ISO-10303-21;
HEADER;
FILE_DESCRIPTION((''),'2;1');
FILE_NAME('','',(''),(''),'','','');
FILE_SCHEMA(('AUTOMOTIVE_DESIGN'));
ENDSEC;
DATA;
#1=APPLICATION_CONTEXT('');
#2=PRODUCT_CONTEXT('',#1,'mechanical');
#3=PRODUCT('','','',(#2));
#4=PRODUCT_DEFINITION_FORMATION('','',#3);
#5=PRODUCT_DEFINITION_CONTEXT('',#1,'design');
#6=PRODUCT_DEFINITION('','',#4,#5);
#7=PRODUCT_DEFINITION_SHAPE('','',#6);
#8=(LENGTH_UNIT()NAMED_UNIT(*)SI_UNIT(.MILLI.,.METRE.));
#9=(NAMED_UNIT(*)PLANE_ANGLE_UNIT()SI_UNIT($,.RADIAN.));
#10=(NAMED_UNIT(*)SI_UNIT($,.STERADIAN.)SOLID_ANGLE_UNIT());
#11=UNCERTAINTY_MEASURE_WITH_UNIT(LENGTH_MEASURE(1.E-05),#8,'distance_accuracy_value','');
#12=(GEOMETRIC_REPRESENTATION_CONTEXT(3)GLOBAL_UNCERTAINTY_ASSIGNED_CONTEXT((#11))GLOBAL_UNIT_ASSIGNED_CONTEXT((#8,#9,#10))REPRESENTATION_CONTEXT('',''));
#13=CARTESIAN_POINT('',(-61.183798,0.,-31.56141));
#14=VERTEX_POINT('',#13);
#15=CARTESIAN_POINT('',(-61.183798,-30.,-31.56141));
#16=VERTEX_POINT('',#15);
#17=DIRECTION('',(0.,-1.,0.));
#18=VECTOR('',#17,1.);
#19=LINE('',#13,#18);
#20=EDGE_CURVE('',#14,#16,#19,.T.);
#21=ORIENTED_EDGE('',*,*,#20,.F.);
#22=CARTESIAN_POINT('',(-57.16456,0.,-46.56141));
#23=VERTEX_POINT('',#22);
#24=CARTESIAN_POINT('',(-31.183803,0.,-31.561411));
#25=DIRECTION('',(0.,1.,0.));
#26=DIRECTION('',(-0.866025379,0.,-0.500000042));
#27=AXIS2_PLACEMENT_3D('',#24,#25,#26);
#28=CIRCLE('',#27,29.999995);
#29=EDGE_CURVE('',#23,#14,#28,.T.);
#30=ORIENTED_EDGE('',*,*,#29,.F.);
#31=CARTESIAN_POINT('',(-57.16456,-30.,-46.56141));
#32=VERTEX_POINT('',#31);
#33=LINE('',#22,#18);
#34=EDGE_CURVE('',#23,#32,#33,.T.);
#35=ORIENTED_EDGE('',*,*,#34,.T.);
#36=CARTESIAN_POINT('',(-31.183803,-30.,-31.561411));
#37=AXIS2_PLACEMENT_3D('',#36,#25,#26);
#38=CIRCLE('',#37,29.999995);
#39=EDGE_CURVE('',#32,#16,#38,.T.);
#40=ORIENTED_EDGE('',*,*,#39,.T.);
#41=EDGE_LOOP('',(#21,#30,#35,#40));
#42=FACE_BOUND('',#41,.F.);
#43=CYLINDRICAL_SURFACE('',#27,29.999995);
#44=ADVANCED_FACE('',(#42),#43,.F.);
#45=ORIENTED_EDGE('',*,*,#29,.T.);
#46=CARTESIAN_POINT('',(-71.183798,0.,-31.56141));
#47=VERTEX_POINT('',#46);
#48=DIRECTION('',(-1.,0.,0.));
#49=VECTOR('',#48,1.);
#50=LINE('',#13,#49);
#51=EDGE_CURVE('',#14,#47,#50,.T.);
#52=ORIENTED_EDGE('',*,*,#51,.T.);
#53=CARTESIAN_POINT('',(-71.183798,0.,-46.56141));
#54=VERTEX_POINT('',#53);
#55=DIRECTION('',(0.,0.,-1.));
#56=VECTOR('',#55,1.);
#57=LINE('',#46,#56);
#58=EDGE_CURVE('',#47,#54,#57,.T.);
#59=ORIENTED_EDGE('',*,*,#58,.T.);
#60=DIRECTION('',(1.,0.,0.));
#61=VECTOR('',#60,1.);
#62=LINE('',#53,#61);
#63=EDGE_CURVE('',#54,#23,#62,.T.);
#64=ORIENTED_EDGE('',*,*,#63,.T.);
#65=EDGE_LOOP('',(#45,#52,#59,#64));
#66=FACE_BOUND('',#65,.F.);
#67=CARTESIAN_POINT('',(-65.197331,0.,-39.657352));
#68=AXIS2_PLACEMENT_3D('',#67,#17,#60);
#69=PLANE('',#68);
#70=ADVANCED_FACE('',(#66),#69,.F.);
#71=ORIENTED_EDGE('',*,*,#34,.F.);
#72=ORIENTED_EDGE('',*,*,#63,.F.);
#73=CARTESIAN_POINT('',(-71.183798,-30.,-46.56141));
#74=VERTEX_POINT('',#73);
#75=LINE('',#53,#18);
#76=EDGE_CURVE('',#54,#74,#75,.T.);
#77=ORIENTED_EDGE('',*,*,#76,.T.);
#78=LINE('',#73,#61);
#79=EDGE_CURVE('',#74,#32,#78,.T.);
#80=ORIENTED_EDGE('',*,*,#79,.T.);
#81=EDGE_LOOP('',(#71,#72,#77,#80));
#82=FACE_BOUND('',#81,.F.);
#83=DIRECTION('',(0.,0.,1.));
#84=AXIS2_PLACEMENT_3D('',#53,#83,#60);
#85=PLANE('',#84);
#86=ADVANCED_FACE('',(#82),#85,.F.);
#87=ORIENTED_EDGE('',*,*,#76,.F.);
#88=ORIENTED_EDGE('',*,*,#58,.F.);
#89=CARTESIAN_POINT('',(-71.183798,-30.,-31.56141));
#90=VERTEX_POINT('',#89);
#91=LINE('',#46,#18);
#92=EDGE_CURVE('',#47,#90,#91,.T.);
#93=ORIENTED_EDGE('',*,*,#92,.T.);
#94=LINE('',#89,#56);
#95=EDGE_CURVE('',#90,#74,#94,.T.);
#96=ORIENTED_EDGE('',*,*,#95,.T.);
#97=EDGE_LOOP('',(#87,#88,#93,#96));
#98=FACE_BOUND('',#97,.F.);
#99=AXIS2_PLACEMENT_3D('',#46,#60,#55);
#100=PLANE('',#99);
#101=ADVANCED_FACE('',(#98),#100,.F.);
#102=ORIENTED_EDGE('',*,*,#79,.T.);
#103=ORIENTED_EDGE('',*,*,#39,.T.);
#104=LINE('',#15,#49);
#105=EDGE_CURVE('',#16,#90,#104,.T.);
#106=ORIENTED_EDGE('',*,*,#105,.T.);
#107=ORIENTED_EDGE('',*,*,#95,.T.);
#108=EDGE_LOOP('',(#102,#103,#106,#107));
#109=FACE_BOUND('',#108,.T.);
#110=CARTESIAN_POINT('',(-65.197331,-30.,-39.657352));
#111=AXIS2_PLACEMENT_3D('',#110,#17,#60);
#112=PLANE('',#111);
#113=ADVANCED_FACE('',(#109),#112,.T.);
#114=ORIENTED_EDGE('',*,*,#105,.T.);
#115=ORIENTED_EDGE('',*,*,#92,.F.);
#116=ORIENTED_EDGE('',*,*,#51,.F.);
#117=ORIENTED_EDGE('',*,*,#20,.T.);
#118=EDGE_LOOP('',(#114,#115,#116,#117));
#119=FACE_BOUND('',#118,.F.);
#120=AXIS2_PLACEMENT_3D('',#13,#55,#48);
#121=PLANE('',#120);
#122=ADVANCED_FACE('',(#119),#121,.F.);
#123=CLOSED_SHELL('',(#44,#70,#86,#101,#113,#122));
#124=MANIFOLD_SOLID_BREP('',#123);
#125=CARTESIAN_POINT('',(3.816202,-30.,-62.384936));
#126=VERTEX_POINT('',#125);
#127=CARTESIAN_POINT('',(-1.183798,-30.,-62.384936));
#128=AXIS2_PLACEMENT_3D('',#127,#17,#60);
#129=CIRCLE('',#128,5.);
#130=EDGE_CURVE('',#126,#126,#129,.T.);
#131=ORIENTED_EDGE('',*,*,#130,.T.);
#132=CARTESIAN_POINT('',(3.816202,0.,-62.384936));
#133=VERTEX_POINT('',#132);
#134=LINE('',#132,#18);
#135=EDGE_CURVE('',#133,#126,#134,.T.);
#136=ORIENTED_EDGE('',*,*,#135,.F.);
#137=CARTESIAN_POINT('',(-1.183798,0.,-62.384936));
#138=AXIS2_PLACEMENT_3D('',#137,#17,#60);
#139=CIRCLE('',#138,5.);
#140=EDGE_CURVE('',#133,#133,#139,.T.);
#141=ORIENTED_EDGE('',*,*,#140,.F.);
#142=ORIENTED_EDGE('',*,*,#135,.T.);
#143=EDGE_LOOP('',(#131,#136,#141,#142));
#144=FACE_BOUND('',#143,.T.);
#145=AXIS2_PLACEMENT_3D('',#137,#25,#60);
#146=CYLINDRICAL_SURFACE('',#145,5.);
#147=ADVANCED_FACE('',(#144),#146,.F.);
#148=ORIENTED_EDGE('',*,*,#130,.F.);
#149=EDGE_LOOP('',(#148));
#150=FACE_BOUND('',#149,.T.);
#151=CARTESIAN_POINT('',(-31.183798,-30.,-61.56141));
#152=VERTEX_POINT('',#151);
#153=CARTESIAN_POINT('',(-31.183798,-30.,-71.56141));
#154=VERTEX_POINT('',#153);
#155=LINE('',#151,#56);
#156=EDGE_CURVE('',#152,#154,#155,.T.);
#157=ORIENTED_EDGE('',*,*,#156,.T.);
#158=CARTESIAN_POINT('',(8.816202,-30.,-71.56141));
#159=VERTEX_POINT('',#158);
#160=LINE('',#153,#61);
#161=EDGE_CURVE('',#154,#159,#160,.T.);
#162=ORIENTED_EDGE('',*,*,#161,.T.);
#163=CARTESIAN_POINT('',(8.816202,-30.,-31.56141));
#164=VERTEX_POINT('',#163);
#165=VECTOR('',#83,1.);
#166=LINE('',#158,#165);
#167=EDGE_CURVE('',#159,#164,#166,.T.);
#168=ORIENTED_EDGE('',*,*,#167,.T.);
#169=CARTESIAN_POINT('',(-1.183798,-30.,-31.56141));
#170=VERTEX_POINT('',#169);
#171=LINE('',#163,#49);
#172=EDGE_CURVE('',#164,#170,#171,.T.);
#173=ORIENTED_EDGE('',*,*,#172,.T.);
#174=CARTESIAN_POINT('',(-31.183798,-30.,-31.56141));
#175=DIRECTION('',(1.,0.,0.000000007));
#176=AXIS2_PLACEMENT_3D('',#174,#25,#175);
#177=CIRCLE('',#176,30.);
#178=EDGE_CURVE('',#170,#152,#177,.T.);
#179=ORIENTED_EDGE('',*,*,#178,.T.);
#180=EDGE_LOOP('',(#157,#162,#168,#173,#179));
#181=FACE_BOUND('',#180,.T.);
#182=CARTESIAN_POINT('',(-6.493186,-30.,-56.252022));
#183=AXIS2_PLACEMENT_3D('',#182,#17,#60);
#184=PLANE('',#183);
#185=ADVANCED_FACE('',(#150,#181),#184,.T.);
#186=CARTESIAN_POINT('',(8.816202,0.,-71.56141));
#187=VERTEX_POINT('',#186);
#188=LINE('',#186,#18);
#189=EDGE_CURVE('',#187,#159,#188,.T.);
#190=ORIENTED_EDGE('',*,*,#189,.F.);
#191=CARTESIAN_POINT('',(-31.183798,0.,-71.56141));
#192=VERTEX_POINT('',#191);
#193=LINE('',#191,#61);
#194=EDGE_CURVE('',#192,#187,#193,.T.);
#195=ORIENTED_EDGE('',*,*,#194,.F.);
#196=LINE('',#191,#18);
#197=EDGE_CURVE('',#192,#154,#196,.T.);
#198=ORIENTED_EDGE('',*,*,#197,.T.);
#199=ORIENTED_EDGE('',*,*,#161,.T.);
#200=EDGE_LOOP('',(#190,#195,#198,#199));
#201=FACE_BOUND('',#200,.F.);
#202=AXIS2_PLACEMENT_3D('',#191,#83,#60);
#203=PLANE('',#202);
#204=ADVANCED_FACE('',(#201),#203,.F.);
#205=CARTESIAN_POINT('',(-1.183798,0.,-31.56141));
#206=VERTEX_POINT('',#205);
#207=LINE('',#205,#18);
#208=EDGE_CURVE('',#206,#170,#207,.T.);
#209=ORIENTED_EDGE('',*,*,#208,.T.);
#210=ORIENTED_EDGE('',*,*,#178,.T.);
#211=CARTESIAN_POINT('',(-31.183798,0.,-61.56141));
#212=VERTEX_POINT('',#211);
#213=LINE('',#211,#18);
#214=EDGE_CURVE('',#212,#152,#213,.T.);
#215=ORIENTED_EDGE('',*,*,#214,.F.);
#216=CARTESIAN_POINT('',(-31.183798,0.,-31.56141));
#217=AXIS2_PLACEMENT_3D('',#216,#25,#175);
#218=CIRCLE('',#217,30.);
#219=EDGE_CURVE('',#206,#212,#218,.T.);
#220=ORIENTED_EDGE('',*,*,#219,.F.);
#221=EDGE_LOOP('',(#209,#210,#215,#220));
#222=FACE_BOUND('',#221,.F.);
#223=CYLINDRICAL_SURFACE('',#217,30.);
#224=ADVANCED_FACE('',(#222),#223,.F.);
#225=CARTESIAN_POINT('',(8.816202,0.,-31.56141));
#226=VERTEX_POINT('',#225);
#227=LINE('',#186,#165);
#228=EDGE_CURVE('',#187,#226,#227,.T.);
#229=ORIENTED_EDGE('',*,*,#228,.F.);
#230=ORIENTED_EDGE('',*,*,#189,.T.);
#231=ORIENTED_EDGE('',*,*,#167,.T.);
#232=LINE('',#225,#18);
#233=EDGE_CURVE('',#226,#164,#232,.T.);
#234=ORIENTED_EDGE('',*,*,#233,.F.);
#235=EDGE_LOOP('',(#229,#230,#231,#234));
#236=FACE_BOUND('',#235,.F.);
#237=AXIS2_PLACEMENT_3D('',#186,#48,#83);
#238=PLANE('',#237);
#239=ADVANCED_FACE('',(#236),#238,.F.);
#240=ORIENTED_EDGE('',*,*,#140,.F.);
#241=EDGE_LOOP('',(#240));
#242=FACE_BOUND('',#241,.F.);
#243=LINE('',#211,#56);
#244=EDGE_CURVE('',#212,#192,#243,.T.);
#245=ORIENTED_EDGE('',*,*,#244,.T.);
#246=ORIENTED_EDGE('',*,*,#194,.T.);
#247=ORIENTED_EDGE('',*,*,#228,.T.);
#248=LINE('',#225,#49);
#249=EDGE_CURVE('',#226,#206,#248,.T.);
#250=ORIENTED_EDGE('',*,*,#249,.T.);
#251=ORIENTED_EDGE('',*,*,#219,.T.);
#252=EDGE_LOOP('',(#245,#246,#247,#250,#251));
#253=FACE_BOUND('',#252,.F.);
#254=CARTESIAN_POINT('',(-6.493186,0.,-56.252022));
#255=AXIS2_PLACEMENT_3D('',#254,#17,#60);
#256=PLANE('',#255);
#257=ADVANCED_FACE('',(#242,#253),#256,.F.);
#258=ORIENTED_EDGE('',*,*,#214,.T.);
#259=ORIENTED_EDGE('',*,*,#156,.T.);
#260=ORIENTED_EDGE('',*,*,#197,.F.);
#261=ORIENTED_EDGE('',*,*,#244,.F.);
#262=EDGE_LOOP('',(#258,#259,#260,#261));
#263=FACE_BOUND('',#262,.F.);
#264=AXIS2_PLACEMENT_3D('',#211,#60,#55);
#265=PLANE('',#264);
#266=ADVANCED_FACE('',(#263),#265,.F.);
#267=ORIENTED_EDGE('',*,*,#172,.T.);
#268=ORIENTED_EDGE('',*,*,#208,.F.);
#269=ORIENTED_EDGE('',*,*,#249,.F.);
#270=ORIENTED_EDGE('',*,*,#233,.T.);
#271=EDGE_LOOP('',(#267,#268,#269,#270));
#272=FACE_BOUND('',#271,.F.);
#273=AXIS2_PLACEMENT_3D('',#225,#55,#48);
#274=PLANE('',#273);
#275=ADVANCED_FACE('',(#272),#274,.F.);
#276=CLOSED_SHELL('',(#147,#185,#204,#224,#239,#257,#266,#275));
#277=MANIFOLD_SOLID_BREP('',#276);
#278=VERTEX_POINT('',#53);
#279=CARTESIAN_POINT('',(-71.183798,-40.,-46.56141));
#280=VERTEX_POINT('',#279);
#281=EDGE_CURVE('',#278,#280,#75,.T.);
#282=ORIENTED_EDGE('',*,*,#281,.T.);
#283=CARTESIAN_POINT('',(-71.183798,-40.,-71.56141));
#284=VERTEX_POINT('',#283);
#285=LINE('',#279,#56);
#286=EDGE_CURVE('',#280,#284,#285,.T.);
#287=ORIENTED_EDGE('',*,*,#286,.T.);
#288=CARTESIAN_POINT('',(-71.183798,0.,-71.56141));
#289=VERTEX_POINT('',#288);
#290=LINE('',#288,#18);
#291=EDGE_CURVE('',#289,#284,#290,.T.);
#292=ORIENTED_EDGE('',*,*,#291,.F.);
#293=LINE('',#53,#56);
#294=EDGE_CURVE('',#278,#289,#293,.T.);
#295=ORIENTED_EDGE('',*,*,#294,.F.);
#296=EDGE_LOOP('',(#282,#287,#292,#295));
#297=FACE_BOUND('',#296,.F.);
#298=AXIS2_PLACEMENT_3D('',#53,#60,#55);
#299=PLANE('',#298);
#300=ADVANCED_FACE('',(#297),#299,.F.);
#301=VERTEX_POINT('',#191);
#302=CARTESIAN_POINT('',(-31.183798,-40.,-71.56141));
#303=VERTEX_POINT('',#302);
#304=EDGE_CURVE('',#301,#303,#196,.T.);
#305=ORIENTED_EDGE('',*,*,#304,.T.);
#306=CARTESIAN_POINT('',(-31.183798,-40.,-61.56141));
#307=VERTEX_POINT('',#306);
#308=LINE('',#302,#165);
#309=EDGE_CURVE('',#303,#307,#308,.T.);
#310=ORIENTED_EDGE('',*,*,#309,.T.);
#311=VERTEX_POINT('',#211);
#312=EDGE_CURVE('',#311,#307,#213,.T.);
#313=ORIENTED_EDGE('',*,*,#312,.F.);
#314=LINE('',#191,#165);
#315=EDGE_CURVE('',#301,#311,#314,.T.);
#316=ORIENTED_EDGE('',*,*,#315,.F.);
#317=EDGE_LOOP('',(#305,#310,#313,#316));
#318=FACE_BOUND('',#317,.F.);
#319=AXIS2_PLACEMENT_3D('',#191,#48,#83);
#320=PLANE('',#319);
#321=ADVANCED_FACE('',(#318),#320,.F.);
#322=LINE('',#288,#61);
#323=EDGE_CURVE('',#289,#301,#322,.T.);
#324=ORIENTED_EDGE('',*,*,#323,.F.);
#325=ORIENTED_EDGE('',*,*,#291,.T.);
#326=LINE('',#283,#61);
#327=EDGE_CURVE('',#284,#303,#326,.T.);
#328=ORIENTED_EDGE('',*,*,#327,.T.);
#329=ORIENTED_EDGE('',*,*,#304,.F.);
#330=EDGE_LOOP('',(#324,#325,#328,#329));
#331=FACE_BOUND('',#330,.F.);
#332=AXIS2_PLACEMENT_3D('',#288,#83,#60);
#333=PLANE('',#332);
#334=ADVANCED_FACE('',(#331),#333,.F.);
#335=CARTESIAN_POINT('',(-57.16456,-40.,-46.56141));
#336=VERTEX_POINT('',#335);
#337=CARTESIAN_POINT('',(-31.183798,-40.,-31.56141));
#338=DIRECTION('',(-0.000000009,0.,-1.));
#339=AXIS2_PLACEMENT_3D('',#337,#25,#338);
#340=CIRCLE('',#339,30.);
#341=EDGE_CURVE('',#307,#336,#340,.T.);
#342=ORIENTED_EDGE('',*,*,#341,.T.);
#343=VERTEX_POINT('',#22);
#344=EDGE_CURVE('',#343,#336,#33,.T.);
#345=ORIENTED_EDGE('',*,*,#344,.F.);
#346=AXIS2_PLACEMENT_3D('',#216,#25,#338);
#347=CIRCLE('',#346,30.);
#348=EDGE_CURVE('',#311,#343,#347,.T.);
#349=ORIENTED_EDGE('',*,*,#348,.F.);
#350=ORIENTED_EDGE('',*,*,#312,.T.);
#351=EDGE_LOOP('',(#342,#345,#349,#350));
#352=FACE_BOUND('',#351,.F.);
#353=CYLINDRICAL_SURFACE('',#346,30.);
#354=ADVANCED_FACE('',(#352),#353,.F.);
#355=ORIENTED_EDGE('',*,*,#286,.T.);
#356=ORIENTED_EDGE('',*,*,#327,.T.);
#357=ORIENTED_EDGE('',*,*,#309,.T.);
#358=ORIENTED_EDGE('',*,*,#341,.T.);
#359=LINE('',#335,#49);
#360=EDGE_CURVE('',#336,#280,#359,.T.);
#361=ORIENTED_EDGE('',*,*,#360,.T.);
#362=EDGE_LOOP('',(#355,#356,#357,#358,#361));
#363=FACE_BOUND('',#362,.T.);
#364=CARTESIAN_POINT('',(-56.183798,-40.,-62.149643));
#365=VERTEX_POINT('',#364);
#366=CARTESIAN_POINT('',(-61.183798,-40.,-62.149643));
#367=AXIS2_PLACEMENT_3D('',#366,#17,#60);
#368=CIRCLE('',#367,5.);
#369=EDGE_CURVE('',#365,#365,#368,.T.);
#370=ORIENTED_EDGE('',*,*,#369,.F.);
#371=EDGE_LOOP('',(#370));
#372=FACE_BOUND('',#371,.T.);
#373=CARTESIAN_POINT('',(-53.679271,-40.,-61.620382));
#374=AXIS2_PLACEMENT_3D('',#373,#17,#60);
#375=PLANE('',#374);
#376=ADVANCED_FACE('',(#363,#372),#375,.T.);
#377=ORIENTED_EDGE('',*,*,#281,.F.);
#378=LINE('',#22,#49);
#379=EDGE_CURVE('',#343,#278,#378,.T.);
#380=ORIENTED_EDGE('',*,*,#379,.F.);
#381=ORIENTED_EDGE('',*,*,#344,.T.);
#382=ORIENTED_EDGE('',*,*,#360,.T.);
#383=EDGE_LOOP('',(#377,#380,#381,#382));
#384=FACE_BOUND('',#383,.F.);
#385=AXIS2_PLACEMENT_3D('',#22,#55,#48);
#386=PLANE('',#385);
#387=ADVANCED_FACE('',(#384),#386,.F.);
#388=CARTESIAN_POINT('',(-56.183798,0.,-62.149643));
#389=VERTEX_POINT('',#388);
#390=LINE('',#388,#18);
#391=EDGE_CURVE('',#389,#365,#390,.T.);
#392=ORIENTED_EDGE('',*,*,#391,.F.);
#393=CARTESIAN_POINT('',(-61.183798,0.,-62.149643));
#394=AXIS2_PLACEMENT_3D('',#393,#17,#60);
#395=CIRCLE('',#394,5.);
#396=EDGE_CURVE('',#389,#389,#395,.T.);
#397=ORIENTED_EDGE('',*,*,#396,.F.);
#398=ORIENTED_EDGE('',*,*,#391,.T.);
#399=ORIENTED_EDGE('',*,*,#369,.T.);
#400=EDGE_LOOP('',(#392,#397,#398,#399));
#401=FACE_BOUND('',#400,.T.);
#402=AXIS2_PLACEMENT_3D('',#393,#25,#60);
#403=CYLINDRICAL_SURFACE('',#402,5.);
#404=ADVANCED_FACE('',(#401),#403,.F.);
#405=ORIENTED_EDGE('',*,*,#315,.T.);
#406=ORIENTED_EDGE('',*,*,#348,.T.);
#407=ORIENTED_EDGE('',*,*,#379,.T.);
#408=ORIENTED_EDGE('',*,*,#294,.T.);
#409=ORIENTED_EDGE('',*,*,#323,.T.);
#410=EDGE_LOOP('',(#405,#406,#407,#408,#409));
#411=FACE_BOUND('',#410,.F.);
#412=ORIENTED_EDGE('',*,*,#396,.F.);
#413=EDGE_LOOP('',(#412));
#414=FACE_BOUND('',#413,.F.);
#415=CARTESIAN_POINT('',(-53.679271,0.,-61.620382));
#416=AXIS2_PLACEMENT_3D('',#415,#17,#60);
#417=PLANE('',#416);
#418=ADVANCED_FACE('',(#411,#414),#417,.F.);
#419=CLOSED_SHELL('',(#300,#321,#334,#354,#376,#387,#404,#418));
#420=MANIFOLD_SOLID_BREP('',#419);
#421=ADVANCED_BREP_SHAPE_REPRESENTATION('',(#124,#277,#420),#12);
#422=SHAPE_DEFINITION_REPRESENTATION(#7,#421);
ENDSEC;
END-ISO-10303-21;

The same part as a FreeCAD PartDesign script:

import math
import FreeCAD as App
import Part
import Sketcher
Q = App.Units.Quantity

doc = App.newDocument("Part")
body = doc.addObject("PartDesign::Body", "Body")
body.AllowCompound = True

# Sketch on XZ plane
sketch1 = doc.addObject("Sketcher::SketchObject", "Sketch")
body.addObject(sketch1)
sketch1.AttachmentSupport = (doc.XZ_Plane, [""])
sketch1.MapMode = "FlatFace"
sketch1.addGeometry([
    Part.LineSegment(App.Vector(-61, -32, 0), App.Vector(-71, -32, 0)),  # 0
    Part.LineSegment(App.Vector(-71, -32, 0), App.Vector(-71, -47, 0)),  # 1
    Part.LineSegment(App.Vector(-71, -47, 0), App.Vector(-57, -47, 0)),  # 2
    Part.ArcOfCircle(Part.Circle(App.Vector(-31, -32, 0), App.Vector(0, 0, 1), 30), math.radians(180), math.radians(210)),  # 3
    Part.ArcOfCircle(Part.Circle(App.Vector(-31, -32, 0), App.Vector(0, 0, 1), 30), math.radians(-90), math.radians(0)),  # 4
    Part.LineSegment(App.Vector(-31, -62, 0), App.Vector(-31, -72, 0)),  # 5
    Part.LineSegment(App.Vector(-31, -72, 0), App.Vector(9, -72, 0)),  # 6
    Part.LineSegment(App.Vector(9, -72, 0), App.Vector(9, -32, 0)),  # 7
    Part.LineSegment(App.Vector(9, -32, 0), App.Vector(-1, -32, 0)),  # 8
    Part.Circle(App.Vector(-1, -62, 0), App.Vector(0, 0, 1), 5),  # 9
], False)
sketch1.addConstraint([
    Sketcher.Constraint("Coincident", 0, 2, 1, 1),
    Sketcher.Constraint("Coincident", 1, 2, 2, 1),
    Sketcher.Constraint("Coincident", 2, 2, 3, 2),
    Sketcher.Constraint("Coincident", 3, 1, 0, 1),
    Sketcher.Constraint("Coincident", 4, 1, 5, 1),
    Sketcher.Constraint("Coincident", 5, 2, 6, 1),
    Sketcher.Constraint("Coincident", 6, 2, 7, 1),
    Sketcher.Constraint("Coincident", 7, 2, 8, 1),
    Sketcher.Constraint("Coincident", 8, 2, 4, 2),
    Sketcher.Constraint("Horizontal", 0),
    Sketcher.Constraint("Vertical", 1),
    Sketcher.Constraint("Horizontal", 2),
    Sketcher.Constraint("Vertical", 5),
    Sketcher.Constraint("Horizontal", 6),
    Sketcher.Constraint("Vertical", 7),
    Sketcher.Constraint("Horizontal", 8),
    Sketcher.Constraint("Coincident", 4, 3, 3, 3),
    Sketcher.Constraint("Horizontal", 4, 3, 0, 2),
    Sketcher.Constraint("Horizontal", 3, 1, 7, 2),
    Sketcher.Constraint("Vertical", 9, 3, 8, 2),
    Sketcher.Constraint("Equal", 0, 8),
    Sketcher.Constraint("Equal", 8, 5),
    Sketcher.Constraint("Equal", 6, 7),
    Sketcher.Constraint("Diameter", 9, Q("10 mm")),
    Sketcher.Constraint("Radius", 4, Q("30 mm")),
    Sketcher.Constraint("DistanceX", 0, 2, 0, 1, Q("10 mm")),
    Sketcher.Constraint("DistanceY", 1, 2, 1, 1, Q("15 mm")),
    Sketcher.Constraint("DistanceX", 0, 2, 4, 3, Q("40 mm")),
    Sketcher.Constraint("DistanceY", 3, 3, -1, 1, Q("31.561411 mm")),
    Sketcher.Constraint("DistanceX", 2, 2, -1, 1, Q("57.16456 mm")),
    Sketcher.Constraint("DistanceY", 9, 3, -1, 1, Q("62.384936 mm")),
])
pad1 = doc.addObject("PartDesign::Pad", "Pad")
body.addObject(pad1)
pad1.Profile = sketch1
pad1.Length = 30
body2 = doc.addObject("PartDesign::Body", "Body001")

# Sketch on XZ plane
sketch2 = doc.addObject("Sketcher::SketchObject", "Sketch001")
body2.addObject(sketch2)
sketch2.AttachmentSupport = (doc.getObject("XZ_Plane001"), [""])
sketch2.MapMode = "FlatFace"
sketch2.addGeometry([
    Part.LineSegment(App.Vector(-57, -47, 0), App.Vector(-71, -47, 0)),  # 0
    Part.LineSegment(App.Vector(-71, -47, 0), App.Vector(-71, -72, 0)),  # 1
    Part.LineSegment(App.Vector(-71, -72, 0), App.Vector(-31, -72, 0)),  # 2
    Part.LineSegment(App.Vector(-31, -72, 0), App.Vector(-31, -62, 0)),  # 3
    Part.ArcOfCircle(Part.Circle(App.Vector(-31, -32, 0), App.Vector(0, 0, 1), 30), math.radians(-150), math.radians(-90)),  # 4
    Part.Circle(App.Vector(-61, -62, 0), App.Vector(0, 0, 1), 5),  # 5
], False)
sketch2.addConstraint([
    Sketcher.Constraint("Coincident", 0, 2, 1, 1),
    Sketcher.Constraint("Coincident", 1, 2, 2, 1),
    Sketcher.Constraint("Coincident", 2, 2, 3, 1),
    Sketcher.Constraint("Coincident", 3, 2, 4, 2),
    Sketcher.Constraint("Coincident", 4, 1, 0, 1),
    Sketcher.Constraint("Horizontal", 0),
    Sketcher.Constraint("Vertical", 1),
    Sketcher.Constraint("Horizontal", 2),
    Sketcher.Constraint("Vertical", 3),
    Sketcher.Constraint("Vertical", 4, 3, 2, 2),
    Sketcher.Constraint("Diameter", 5, Q("10 mm")),
    Sketcher.Constraint("Radius", 4, Q("30 mm")),
    Sketcher.Constraint("DistanceX", 2, 1, 2, 2, Q("40 mm")),
    Sketcher.Constraint("DistanceY", 1, 2, 1, 1, Q("25 mm")),
    Sketcher.Constraint("DistanceY", 3, 1, 3, 2, Q("10 mm")),
    Sketcher.Constraint("DistanceX", 5, 3, 4, 3, Q("30 mm")),
    Sketcher.Constraint("DistanceX", 5, 3, -1, 1, Q("61.183798 mm")),
    Sketcher.Constraint("DistanceY", 4, 3, -1, 1, Q("31.56141 mm")),
    Sketcher.Constraint("DistanceY", 5, 3, -1, 1, Q("62.149643 mm")),
])
pad2 = doc.addObject("PartDesign::Pad", "Pad001")
body2.addObject(pad2)
pad2.Profile = sketch2
pad2.Length = 40

doc.recompute()
